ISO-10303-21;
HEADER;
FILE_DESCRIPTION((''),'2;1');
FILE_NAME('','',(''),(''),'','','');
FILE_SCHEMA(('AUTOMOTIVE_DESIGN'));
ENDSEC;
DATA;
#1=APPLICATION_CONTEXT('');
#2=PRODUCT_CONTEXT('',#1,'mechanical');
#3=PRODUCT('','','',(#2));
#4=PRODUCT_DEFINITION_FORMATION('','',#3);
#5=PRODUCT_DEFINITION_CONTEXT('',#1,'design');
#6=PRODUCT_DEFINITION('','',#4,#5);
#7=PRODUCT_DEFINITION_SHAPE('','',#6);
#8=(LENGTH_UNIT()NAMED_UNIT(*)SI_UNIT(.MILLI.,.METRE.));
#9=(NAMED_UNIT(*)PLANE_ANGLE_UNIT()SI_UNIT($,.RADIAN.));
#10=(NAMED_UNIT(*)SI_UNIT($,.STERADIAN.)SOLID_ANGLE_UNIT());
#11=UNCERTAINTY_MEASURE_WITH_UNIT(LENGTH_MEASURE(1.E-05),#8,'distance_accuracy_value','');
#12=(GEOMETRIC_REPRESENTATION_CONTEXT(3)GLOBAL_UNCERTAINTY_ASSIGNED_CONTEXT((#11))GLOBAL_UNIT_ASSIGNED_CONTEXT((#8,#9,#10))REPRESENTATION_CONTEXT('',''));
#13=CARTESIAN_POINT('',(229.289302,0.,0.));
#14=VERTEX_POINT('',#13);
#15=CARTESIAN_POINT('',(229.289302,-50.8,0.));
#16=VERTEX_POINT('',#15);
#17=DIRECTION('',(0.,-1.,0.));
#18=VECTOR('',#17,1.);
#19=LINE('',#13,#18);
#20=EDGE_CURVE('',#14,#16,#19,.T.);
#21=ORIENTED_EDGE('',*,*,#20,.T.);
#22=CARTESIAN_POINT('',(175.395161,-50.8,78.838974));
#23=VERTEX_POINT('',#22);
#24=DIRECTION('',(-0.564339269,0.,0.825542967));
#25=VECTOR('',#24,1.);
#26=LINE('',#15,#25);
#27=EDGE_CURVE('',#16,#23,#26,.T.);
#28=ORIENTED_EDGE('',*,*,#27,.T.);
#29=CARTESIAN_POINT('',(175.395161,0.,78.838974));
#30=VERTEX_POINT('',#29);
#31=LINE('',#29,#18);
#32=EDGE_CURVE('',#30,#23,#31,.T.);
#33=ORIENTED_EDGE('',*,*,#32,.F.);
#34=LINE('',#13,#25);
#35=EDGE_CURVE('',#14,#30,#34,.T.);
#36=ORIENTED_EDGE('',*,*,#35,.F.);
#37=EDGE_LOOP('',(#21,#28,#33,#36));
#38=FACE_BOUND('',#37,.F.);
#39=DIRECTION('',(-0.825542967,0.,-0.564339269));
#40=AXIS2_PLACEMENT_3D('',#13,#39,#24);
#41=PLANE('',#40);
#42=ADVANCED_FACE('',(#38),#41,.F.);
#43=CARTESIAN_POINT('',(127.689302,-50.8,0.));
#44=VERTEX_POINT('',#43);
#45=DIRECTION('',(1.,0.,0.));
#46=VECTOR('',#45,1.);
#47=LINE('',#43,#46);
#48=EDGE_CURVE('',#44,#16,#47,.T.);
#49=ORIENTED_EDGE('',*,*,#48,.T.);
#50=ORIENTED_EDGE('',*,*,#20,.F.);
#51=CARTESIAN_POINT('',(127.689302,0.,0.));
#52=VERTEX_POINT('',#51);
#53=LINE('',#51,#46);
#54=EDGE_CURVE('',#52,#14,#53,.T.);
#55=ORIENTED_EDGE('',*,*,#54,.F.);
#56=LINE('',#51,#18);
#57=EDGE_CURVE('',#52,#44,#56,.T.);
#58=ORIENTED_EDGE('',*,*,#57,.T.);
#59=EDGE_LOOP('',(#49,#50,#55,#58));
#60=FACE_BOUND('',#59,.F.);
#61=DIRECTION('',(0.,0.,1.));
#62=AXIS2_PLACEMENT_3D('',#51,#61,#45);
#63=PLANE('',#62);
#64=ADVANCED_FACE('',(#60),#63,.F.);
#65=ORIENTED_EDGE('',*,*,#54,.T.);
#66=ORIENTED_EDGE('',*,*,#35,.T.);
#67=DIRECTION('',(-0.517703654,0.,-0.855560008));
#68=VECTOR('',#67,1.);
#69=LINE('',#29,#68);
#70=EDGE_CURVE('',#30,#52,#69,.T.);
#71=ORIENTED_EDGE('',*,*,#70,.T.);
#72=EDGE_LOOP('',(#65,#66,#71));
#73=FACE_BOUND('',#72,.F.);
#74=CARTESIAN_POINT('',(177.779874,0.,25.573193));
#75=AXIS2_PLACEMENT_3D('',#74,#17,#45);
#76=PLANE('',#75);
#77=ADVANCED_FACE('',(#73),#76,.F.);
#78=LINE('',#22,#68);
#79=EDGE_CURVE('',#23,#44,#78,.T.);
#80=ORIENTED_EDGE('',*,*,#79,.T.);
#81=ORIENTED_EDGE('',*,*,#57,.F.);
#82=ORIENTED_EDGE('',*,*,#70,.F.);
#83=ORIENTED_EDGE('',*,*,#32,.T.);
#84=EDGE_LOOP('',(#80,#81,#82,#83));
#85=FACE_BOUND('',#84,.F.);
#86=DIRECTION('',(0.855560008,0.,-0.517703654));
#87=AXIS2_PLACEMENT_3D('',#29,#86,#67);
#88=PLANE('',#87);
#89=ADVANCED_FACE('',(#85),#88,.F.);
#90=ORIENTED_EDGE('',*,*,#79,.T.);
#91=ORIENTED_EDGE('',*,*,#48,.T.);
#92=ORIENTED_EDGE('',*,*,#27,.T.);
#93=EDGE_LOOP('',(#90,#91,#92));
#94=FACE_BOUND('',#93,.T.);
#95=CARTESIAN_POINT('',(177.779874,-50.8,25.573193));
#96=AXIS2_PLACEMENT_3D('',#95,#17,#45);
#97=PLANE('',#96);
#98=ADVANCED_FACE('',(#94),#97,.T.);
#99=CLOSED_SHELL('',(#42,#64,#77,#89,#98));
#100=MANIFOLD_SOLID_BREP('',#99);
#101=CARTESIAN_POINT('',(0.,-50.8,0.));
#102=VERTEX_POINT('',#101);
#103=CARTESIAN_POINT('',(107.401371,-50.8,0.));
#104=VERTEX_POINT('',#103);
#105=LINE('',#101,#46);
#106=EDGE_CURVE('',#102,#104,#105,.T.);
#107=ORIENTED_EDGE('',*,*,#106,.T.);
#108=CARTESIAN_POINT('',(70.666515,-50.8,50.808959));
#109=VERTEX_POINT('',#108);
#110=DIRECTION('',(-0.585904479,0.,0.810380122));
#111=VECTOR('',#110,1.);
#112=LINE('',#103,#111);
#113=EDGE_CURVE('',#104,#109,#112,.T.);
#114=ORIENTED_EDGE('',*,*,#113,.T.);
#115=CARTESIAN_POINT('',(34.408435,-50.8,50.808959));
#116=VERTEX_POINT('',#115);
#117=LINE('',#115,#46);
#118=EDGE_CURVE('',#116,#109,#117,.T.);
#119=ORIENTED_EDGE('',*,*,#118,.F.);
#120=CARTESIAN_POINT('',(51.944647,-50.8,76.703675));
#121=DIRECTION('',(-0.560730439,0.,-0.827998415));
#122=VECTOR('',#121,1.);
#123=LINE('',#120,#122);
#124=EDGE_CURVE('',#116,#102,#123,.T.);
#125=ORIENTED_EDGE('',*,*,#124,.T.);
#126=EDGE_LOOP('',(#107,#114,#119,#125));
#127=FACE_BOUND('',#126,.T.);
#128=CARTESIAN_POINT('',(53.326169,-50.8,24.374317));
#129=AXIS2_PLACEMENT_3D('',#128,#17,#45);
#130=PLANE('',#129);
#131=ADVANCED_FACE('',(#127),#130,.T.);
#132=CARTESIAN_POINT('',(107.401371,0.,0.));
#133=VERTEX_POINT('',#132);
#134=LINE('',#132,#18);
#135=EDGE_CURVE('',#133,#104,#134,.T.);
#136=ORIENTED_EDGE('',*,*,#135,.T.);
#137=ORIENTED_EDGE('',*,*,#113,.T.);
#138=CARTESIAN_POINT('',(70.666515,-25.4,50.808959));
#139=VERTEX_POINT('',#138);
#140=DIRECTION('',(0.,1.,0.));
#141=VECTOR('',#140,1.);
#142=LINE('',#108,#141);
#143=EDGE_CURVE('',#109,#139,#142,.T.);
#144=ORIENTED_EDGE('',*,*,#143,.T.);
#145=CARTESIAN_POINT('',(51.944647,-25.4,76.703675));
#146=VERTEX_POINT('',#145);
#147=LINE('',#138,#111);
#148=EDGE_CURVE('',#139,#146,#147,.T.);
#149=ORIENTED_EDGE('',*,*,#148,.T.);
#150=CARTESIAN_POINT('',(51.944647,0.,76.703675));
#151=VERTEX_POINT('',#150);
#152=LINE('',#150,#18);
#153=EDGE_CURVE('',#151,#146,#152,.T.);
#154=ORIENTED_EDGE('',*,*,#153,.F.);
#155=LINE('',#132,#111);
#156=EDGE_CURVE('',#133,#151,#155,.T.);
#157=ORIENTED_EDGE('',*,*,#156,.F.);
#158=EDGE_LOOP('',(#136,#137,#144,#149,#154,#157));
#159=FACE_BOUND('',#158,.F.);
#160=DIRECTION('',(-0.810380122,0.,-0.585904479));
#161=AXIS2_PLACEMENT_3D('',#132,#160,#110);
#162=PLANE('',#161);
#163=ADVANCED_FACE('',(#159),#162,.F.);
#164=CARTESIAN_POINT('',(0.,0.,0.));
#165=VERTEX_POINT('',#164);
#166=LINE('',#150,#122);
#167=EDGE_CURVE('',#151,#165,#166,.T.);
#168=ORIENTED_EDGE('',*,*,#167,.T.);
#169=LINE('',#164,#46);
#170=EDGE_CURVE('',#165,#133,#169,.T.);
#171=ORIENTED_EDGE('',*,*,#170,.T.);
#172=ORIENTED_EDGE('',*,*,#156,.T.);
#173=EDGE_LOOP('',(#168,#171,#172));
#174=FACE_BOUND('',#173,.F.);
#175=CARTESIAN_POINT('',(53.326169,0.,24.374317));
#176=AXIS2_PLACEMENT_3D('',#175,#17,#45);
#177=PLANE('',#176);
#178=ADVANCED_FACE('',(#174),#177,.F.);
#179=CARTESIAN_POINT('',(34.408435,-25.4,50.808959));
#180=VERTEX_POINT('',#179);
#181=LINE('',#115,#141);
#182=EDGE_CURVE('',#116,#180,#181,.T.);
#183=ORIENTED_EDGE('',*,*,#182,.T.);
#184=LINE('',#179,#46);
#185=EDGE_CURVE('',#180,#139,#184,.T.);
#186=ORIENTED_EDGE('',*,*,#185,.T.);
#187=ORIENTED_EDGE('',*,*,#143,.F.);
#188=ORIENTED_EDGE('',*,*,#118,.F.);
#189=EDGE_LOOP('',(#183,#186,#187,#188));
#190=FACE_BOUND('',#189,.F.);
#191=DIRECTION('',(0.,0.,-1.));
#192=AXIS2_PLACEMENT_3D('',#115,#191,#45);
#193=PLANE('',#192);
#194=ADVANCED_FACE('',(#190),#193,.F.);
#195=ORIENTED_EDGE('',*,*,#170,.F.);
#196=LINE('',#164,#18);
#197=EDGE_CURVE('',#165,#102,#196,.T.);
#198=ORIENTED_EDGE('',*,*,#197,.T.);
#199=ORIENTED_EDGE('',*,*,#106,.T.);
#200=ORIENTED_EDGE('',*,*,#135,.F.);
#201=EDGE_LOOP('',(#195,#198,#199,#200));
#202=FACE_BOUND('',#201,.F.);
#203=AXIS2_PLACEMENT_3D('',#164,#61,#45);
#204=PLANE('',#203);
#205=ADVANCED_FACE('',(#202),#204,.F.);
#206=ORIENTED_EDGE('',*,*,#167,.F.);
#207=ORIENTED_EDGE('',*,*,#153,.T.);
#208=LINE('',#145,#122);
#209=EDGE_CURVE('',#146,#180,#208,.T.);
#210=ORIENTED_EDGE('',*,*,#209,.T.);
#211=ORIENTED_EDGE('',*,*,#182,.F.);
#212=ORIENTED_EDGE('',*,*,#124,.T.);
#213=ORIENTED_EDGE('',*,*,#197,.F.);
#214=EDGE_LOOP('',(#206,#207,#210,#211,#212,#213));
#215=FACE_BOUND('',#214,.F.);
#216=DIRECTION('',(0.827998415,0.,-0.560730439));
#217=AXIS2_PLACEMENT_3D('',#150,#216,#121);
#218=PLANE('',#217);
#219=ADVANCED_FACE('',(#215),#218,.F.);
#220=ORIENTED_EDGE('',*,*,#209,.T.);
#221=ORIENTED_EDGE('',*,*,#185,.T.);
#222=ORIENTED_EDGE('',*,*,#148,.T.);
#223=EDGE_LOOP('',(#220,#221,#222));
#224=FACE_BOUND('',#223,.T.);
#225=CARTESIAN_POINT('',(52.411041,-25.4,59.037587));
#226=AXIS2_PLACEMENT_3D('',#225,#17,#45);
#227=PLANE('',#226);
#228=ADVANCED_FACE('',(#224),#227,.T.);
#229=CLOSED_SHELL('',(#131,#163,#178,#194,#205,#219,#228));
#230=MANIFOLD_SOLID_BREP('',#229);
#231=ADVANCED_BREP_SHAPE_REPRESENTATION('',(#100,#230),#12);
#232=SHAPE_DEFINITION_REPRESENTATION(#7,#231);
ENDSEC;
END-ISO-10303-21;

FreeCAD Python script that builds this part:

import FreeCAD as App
import Part
import Sketcher
Q = App.Units.Quantity


def add_polygon(sketch, points):
    """Adds a closed chain of lines whose ends are joined by coincident constraints."""
    first, n = sketch.GeometryCount, len(points)
    for a, b in zip(points, points[1:] + points[:1]):
        sketch.addGeometry(Part.LineSegment(App.Vector(*a, 0), App.Vector(*b, 0)), False)
    for i in range(n):
        sketch.addConstraint(Sketcher.Constraint("Coincident", first + i, 2, first + (i + 1) % n, 1))

doc = App.newDocument("Part")
body = doc.addObject("PartDesign::Body", "Body")

# Sketch on XZ plane
sketch1 = doc.addObject("Sketcher::SketchObject", "Sketch")
body.addObject(sketch1)
sketch1.AttachmentSupport = (doc.XZ_Plane, [""])
sketch1.MapMode = "FlatFace"
add_polygon(sketch1, [(52, 77), (0, 0), (107, 0)])  # lines 0-2
sketch1.addConstraint([
    Sketcher.Constraint("Horizontal", 1),
    Sketcher.Constraint("Coincident", 0, 2, -1, 1),
    Sketcher.Constraint("DistanceX", 1, 1, 1, 2, 107.401371),
    Sketcher.Constraint("Distance", 0, 92.637466),
    Sketcher.Constraint("Distance", 2, 94.651477),
])
pad1 = doc.addObject("PartDesign::Pad", "Pad")
body.addObject(pad1)
pad1.Profile = sketch1
pad1.Length = Q("2 in")

# Sketch on XZ plane
sketch2 = doc.addObject("Sketcher::SketchObject", "Sketch001")
body.addObject(sketch2)
sketch2.AttachmentSupport = (doc.XZ_Plane, [""])
sketch2.MapMode = "FlatFace"
sketch2.AttachmentOffset = App.Placement(App.Vector(0, 0, 2 * 25.4), App.Rotation())
add_polygon(sketch2, [(52, 77), (34, 51), (71, 51)])  # lines 0-2
sketch2.addConstraint([
    Sketcher.Constraint("Horizontal", 1),
    Sketcher.Constraint("DistanceX", 1, 1, 1, 2, 36.25808),
    Sketcher.Constraint("Distance", 0, 31.273871),
    Sketcher.Constraint("Distance", 2, 31.95379),
    Sketcher.Constraint("DistanceY", -1, 1, 0, 2, 50.808959),
    Sketcher.Constraint("DistanceX", -1, 1, 0, 2, 34.408435),
])
pocket1 = doc.addObject("PartDesign::Pocket", "Pocket")
body.addObject(pocket1)
pocket1.Profile = sketch2
pocket1.Length = Q("1 in")
body2 = doc.addObject("PartDesign::Body", "Body001")

# Sketch on XZ plane
sketch3 = doc.addObject("Sketcher::SketchObject", "Sketch002")
body2.addObject(sketch3)
sketch3.AttachmentSupport = (doc.getObject("XZ_Plane001"), [""])
sketch3.MapMode = "FlatFace"
add_polygon(sketch3, [(175, 79), (128, 0), (229, 0)])  # lines 0-2
sketch3.addConstraint([
    Sketcher.Constraint("Horizontal", 1),
    Sketcher.Constraint("PointOnObject", 0, 2, -1),
    Sketcher.Constraint("DistanceX", 1, 1, 1, 2, Q("4 in")),
    Sketcher.Constraint("DistanceX", -1, 1, 0, 2, 127.689302),
    Sketcher.Constraint("Distance", 0, 92.148971),
    Sketcher.Constraint("Distance", 2, 95.499541),
])
pad2 = doc.addObject("PartDesign::Pad", "Pad001")
body2.addObject(pad2)
pad2.Profile = sketch3
pad2.Length = Q("2 in")

doc.recompute()
